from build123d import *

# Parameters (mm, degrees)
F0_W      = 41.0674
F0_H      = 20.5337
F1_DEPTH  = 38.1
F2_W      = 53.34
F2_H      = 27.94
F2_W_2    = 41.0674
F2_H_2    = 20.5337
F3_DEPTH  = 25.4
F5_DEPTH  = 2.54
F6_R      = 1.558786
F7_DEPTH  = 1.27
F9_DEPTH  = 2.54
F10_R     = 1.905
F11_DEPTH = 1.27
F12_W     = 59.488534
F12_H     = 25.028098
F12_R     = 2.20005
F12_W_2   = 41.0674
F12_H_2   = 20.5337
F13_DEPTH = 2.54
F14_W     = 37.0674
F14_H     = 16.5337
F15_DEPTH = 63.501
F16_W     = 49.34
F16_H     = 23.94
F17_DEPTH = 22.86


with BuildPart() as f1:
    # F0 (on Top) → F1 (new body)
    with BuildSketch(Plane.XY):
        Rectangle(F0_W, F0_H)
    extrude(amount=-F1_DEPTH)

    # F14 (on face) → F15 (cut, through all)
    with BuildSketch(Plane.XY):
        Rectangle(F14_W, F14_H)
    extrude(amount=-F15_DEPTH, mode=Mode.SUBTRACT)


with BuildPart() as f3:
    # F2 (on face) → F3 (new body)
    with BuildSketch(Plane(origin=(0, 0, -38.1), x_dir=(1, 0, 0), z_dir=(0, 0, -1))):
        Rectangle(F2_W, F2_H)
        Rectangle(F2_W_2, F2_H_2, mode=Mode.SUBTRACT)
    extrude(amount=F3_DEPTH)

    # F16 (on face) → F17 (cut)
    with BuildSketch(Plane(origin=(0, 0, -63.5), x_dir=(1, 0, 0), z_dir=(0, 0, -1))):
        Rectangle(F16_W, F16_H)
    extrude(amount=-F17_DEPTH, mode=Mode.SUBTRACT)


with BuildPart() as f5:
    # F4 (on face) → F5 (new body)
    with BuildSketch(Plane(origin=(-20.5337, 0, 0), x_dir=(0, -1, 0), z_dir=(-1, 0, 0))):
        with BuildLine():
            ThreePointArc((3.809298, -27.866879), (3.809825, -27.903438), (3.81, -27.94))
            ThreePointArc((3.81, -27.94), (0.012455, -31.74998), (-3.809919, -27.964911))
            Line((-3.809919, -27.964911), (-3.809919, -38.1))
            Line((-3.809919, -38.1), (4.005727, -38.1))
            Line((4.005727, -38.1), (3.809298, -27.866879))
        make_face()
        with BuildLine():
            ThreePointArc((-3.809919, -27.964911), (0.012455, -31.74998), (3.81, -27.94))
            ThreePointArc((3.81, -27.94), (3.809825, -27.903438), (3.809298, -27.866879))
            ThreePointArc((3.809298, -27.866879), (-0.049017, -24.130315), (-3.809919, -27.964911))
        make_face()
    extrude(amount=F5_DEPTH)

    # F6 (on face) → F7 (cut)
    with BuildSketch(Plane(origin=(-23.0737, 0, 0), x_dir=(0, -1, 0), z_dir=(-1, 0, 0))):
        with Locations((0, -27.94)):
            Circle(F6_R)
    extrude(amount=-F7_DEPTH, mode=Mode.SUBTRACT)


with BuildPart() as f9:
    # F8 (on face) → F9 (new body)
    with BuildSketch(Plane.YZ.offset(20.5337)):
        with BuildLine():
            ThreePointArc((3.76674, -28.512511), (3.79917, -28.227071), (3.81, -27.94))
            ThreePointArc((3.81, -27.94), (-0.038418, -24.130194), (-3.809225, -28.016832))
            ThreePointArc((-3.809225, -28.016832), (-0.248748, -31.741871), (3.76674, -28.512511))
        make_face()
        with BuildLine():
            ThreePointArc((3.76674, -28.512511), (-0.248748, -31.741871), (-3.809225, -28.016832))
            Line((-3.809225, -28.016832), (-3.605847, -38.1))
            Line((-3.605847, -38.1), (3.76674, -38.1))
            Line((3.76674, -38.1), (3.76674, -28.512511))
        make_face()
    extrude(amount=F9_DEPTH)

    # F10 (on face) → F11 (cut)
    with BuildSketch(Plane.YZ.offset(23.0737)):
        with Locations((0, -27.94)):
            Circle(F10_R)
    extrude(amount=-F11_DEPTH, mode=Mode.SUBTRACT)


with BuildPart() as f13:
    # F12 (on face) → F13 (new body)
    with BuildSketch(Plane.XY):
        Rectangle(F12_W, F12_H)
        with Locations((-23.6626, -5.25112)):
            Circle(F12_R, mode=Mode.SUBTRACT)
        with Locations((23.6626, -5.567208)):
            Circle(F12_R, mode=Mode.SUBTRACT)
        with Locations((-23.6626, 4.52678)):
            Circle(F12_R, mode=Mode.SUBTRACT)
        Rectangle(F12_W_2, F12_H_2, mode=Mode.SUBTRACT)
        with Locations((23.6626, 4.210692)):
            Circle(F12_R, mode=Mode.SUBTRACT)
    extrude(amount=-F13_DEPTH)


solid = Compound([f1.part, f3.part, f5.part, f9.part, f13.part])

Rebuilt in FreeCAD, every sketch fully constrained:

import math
import FreeCAD as App
import Part
import Sketcher
from FreeCAD import Vector
Q = App.Units.Quantity


def add_polygon(sketch, points):
    """Adds a closed chain of lines whose ends are joined by coincident constraints."""
    first, n = sketch.GeometryCount, len(points)
    for a, b in zip(points, points[1:] + points[:1]):
        sketch.addGeometry(Part.LineSegment(App.Vector(*a, 0), App.Vector(*b, 0)), False)
    for i in range(n):
        sketch.addConstraint(Sketcher.Constraint("Coincident", first + i, 2, first + (i + 1) % n, 1))

doc = App.newDocument("Part")
body = doc.addObject("PartDesign::Body", "Body")

sketch1 = doc.addObject("Sketcher::SketchObject", "Sketch")
body.addObject(sketch1)
sketch1.AttachmentSupport = (doc.XY_Plane, [""])
sketch1.MapMode = "FlatFace"
add_polygon(sketch1, [(-20.5337, 10.26685), (-20.5337, -10.26685), (20.5337, -10.26685), (20.5337, 10.26685)])
sketch1.addConstraint(Sketcher.Constraint("Vertical", 0))
sketch1.addConstraint(Sketcher.Constraint("Horizontal", 1))
sketch1.addConstraint(Sketcher.Constraint("Vertical", 2))
sketch1.addConstraint(Sketcher.Constraint("Horizontal", 3))
sketch1.addConstraint(Sketcher.Constraint("Symmetric", 0, 2, 2, 2, -1, 1))
sketch1.addConstraint(Sketcher.Constraint("DistanceX", 1, 1, 1, 2, 41.0674))
sketch1.addConstraint(Sketcher.Constraint("DistanceY", 0, 2, 0, 1, 20.5337))
pad1 = doc.addObject("PartDesign::Pad", "Pad")
body.addObject(pad1)
pad1.Profile = sketch1
pad1.Length = Q("1.5 in")
pad1.Reversed = True

sketch2 = doc.addObject("Sketcher::SketchObject", "Sketch001")
body.addObject(sketch2)
sketch2.AttachmentSupport = (doc.XY_Plane, [""])
sketch2.MapMode = "FlatFace"
add_polygon(sketch2, [(-18.5337, 8.26685), (-18.5337, -8.26685), (18.5337, -8.26685), (18.5337, 8.26685)])
sketch2.addConstraint(Sketcher.Constraint("Vertical", 0))
sketch2.addConstraint(Sketcher.Constraint("Horizontal", 1))
sketch2.addConstraint(Sketcher.Constraint("Vertical", 2))
sketch2.addConstraint(Sketcher.Constraint("Horizontal", 3))
sketch2.addConstraint(Sketcher.Constraint("Symmetric", 0, 2, 2, 2, -1, 1))
sketch2.addConstraint(Sketcher.Constraint("DistanceX", 1, 1, 1, 2, 37.0674))
sketch2.addConstraint(Sketcher.Constraint("DistanceY", 0, 2, 0, 1, 16.5337))
pocket1 = doc.addObject("PartDesign::Pocket", "Pocket")
body.addObject(pocket1)
pocket1.Profile = sketch2
pocket1.Type = "ThroughAll"
body2 = doc.addObject("PartDesign::Body", "Body001")

sketch3 = doc.addObject("Sketcher::SketchObject", "Sketch002")
body2.addObject(sketch3)
sketch3.AttachmentSupport = (doc.getObject("XY_Plane001"), [""])
sketch3.MapMode = "FlatFace"
sketch3.AttachmentOffset = App.Placement(Vector(0, 0, -1.5 * 25.4), App.Rotation())
add_polygon(sketch3, [(-26.67, -13.97), (-26.67, 13.97), (26.67, 13.97), (26.67, -13.97)])
add_polygon(sketch3, [(20.5337, 10.26685), (-20.5337, 10.26685), (-20.5337, -10.26685), (20.5337, -10.26685)])
sketch3.addConstraint(Sketcher.Constraint("Vertical", 0))
sketch3.addConstraint(Sketcher.Constraint("Horizontal", 1))
sketch3.addConstraint(Sketcher.Constraint("Vertical", 2))
sketch3.addConstraint(Sketcher.Constraint("Horizontal", 3))
sketch3.addConstraint(Sketcher.Constraint("Horizontal", 4))
sketch3.addConstraint(Sketcher.Constraint("Vertical", 5))
sketch3.addConstraint(Sketcher.Constraint("Horizontal", 6))
sketch3.addConstraint(Sketcher.Constraint("Vertical", 7))
sketch3.addConstraint(Sketcher.Constraint("Symmetric", 0, 2, 2, 2, -1, 1))
sketch3.addConstraint(Sketcher.Constraint("Symmetric", 4, 2, 6, 2, -1, 1))
sketch3.addConstraint(Sketcher.Constraint("DistanceX", 1, 1, 1, 2, Q("2.1 in")))
sketch3.addConstraint(Sketcher.Constraint("DistanceY", 0, 1, 0, 2, Q("1.1 in")))
sketch3.addConstraint(Sketcher.Constraint("DistanceX", 4, 2, 4, 1, 41.0674))
sketch3.addConstraint(Sketcher.Constraint("DistanceY", 5, 2, 5, 1, 20.5337))
pad2 = doc.addObject("PartDesign::Pad", "Pad001")
body2.addObject(pad2)
pad2.Profile = sketch3
pad2.Length = Q("1 in")
pad2.Reversed = True

sketch4 = doc.addObject("Sketcher::SketchObject", "Sketch003")
body2.addObject(sketch4)
sketch4.AttachmentSupport = (doc.getObject("XY_Plane001"), [""])
sketch4.MapMode = "FlatFace"
sketch4.AttachmentOffset = App.Placement(Vector(0, 0, -2.5 * 25.4), App.Rotation())
add_polygon(sketch4, [(-24.67, -11.97), (-24.67, 11.97), (24.67, 11.97), (24.67, -11.97)])
sketch4.addConstraint(Sketcher.Constraint("Vertical", 0))
sketch4.addConstraint(Sketcher.Constraint("Horizontal", 1))
sketch4.addConstraint(Sketcher.Constraint("Vertical", 2))
sketch4.addConstraint(Sketcher.Constraint("Horizontal", 3))
sketch4.addConstraint(Sketcher.Constraint("Symmetric", 0, 2, 2, 2, -1, 1))
sketch4.addConstraint(Sketcher.Constraint("DistanceX", 1, 1, 1, 2, 49.34))
sketch4.addConstraint(Sketcher.Constraint("DistanceY", 0, 1, 0, 2, 23.94))
pocket2 = doc.addObject("PartDesign::Pocket", "Pocket001")
body2.addObject(pocket2)
pocket2.Profile = sketch4
pocket2.Length = Q("0.9 in")
pocket2.Reversed = True
body3 = doc.addObject("PartDesign::Body", "Body002")

sketch5 = doc.addObject("Sketcher::SketchObject", "Sketch004")
body3.addObject(sketch5)
sketch5.AttachmentSupport = (doc.getObject("YZ_Plane002"), [""])
sketch5.MapMode = "FlatFace"
sketch5.AttachmentOffset = App.Placement(Vector(0, 0, -20.5337), App.Rotation())
sketch5.addGeometry(Part.LineSegment(Vector(3.809919, -27.964911, 0), Vector(3.809919, -38.1, 0)), False)
sketch5.addGeometry(Part.LineSegment(Vector(3.809919, -38.1, 0), Vector(-4.005727, -38.1, 0)), False)
sketch5.addGeometry(Part.LineSegment(Vector(-4.005727, -38.1, 0), Vector(-3.809298, -27.866879, 0)), False)
sketch5.addGeometry(Part.ArcOfCircle(Part.Circle(Vector(0, -27.94, 0), Vector(0, 0, 1), 3.81), math.radians(-0.374624), math.radians(178.900323)), False)
sketch5.addConstraint(Sketcher.Constraint("Coincident", 0, 2, 1, 1))
sketch5.addConstraint(Sketcher.Constraint("Coincident", 1, 2, 2, 1))
sketch5.addConstraint(Sketcher.Constraint("Coincident", 2, 2, 3, 2))
sketch5.addConstraint(Sketcher.Constraint("Coincident", 3, 1, 0, 1))
sketch5.addConstraint(Sketcher.Constraint("Vertical", 0))
sketch5.addConstraint(Sketcher.Constraint("Horizontal", 1))
sketch5.addConstraint(Sketcher.Constraint("PointOnObject", 3, 3, -2))
sketch5.addConstraint(Sketcher.Constraint("Radius", 3, Q("0.15 in")))
sketch5.addConstraint(Sketcher.Constraint("DistanceY", 3, 3, -1, 1, Q("1.1 in")))
sketch5.addConstraint(Sketcher.Constraint("DistanceY", 0, 2, -1, 1, Q("1.5 in")))
sketch5.addConstraint(Sketcher.Constraint("DistanceY", 0, 2, 0, 1, 10.135089))
sketch5.addConstraint(Sketcher.Constraint("DistanceX", 2, 2, -1, 1, 3.809298))
sketch5.addConstraint(Sketcher.Constraint("DistanceX", 1, 2, 1, 1, 7.815646))
pad3 = doc.addObject("PartDesign::Pad", "Pad002")
body3.addObject(pad3)
pad3.Profile = sketch5
pad3.Length = Q("0.1 in")
pad3.Reversed = True

sketch6 = doc.addObject("Sketcher::SketchObject", "Sketch005")
body3.addObject(sketch6)
sketch6.AttachmentSupport = (doc.getObject("YZ_Plane002"), [""])
sketch6.MapMode = "FlatFace"
sketch6.AttachmentOffset = App.Placement(Vector(0, 0, -23.0737), App.Rotation())
sketch6.addGeometry(Part.Circle(Vector(0, -27.94, 0), Vector(0, 0, 1), 1.558786), False)
sketch6.addConstraint(Sketcher.Constraint("PointOnObject", 0, 3, -2))
sketch6.addConstraint(Sketcher.Constraint("DistanceY", 0, 3, -1, 1, Q("1.1 in")))
sketch6.addConstraint(Sketcher.Constraint("Diameter", 0, 3.117572))
pocket3 = doc.addObject("PartDesign::Pocket", "Pocket002")
body3.addObject(pocket3)
pocket3.Profile = sketch6
pocket3.Length = Q("0.05 in")
pocket3.Reversed = True
body4 = doc.addObject("PartDesign::Body", "Body003")

sketch7 = doc.addObject("Sketcher::SketchObject", "Sketch006")
body4.addObject(sketch7)
sketch7.AttachmentSupport = (doc.getObject("YZ_Plane003"), [""])
sketch7.MapMode = "FlatFace"
sketch7.AttachmentOffset = App.Placement(Vector(0, 0, 20.5337), App.Rotation())
sketch7.addGeometry(Part.ArcOfCircle(Part.Circle(Vector(0.000134, -27.940009, 0), Vector(0, 0, 1), 3.809866), math.radians(-8.642469), math.radians(0.00014)), False)
sketch7.addGeometry(Part.ArcOfCircle(Part.Circle(Vector(0, -27.94, 0), Vector(0, 0, 1), 3.81), math.radians(0.000003), math.radians(181.155495)), False)
sketch7.addGeometry(Part.LineSegment(Vector(-3.809225, -28.016832, 0), Vector(-3.605847, -38.1, 0)), False)
sketch7.addGeometry(Part.LineSegment(Vector(-3.605847, -38.1, 0), Vector(3.76674, -38.1, 0)), False)
sketch7.addGeometry(Part.LineSegment(Vector(3.76674, -38.1, 0), Vector(3.76674, -28.512511, 0)), False)
sketch7.addConstraint(Sketcher.Constraint("Coincident", 0, 2, 1, 1))
sketch7.addConstraint(Sketcher.Constraint("Tangent", 1, 2, 2, 1))
sketch7.addConstraint(Sketcher.Constraint("Coincident", 2, 2, 3, 1))
sketch7.addConstraint(Sketcher.Constraint("Coincident", 3, 2, 4, 1))
sketch7.addConstraint(Sketcher.Constraint("Coincident", 4, 2, 0, 1))
sketch7.addConstraint(Sketcher.Constraint("Horizontal", 3))
sketch7.addConstraint(Sketcher.Constraint("Vertical", 4))
sketch7.addConstraint(Sketcher.Constraint("PointOnObject", 1, 3, -2))
sketch7.addConstraint(Sketcher.Constraint("Horizontal", 1, 3, 0, 2))
sketch7.addConstraint(Sketcher.Constraint("Radius", 1, Q("0.15 in")))
sketch7.addConstraint(Sketcher.Constraint("DistanceY", 1, 3, -1, 1, Q("1.1 in")))
sketch7.addConstraint(Sketcher.Constraint("DistanceY", 2, 2, -1, 1, Q("1.5 in")))
sketch7.addConstraint(Sketcher.Constraint("Radius", 0, 3.809866))
sketch7.addConstraint(Sketcher.Constraint("DistanceY", 4, 1, 4, 2, 9.587489))
sketch7.addConstraint(Sketcher.Constraint("DistanceY", 4, 2, 0, 3, 0.572502))
sketch7.addConstraint(Sketcher.Constraint("Distance", 2, 10.085219))
pad4 = doc.addObject("PartDesign::Pad", "Pad003")
body4.addObject(pad4)
pad4.Profile = sketch7
pad4.Length = Q("0.1 in")

sketch8 = doc.addObject("Sketcher::SketchObject", "Sketch007")
body4.addObject(sketch8)
sketch8.AttachmentSupport = (doc.getObject("YZ_Plane003"), [""])
sketch8.MapMode = "FlatFace"
sketch8.AttachmentOffset = App.Placement(Vector(0, 0, 23.0737), App.Rotation())
sketch8.addGeometry(Part.Circle(Vector(0, -27.94, 0), Vector(0, 0, 1), 1.905), False)
sketch8.addConstraint(Sketcher.Constraint("PointOnObject", 0, 3, -2))
sketch8.addConstraint(Sketcher.Constraint("Diameter", 0, Q("0.15 in")))
sketch8.addConstraint(Sketcher.Constraint("DistanceY", 0, 3, -1, 1, Q("1.1 in")))
pocket4 = doc.addObject("PartDesign::Pocket", "Pocket003")
body4.addObject(pocket4)
pocket4.Profile = sketch8
pocket4.Length = Q("0.05 in")
body5 = doc.addObject("PartDesign::Body", "Body004")

sketch9 = doc.addObject("Sketcher::SketchObject", "Sketch008")
body5.addObject(sketch9)
sketch9.AttachmentSupport = (doc.getObject("XY_Plane004"), [""])
sketch9.MapMode = "FlatFace"
add_polygon(sketch9, [(-29.744267, 12.514049), (-29.744267, -12.514049), (29.744267, -12.514049), (29.744267, 12.514049)])
sketch9.addGeometry(Part.Circle(Vector(-23.6626, -5.25112, 0), Vector(0, 0, 1), 2.20005), False)
sketch9.addGeometry(Part.Circle(Vector(23.6626, -5.567208, 0), Vector(0, 0, 1), 2.20005), False)
sketch9.addGeometry(Part.Circle(Vector(-23.6626, 4.52678, 0), Vector(0, 0, 1), 2.20005), False)
add_polygon(sketch9, [(20.5337, -10.26685), (-20.5337, -10.26685), (-20.5337, 10.26685), (20.5337, 10.26685)])
sketch9.addGeometry(Part.Circle(Vector(23.6626, 4.210692, 0), Vector(0, 0, 1), 2.20005), False)
sketch9.addConstraint(Sketcher.Constraint("Vertical", 0))
sketch9.addConstraint(Sketcher.Constraint("Horizontal", 1))
sketch9.addConstraint(Sketcher.Constraint("Vertical", 2))
sketch9.addConstraint(Sketcher.Constraint("Horizontal", 3))
sketch9.addConstraint(Sketcher.Constraint("Horizontal", 7))
sketch9.addConstraint(Sketcher.Constraint("Vertical", 8))
sketch9.addConstraint(Sketcher.Constraint("Horizontal", 9))
sketch9.addConstraint(Sketcher.Constraint("Vertical", 10))
sketch9.addConstraint(Sketcher.Constraint("Equal", 4, 5))
sketch9.addConstraint(Sketcher.Constraint("Equal", 5, 6))
sketch9.addConstraint(Sketcher.Constraint("Equal", 6, 11))
sketch9.addConstraint(Sketcher.Constraint("Symmetric", 0, 2, 2, 2, -1, 1))
sketch9.addConstraint(Sketcher.Constraint("Symmetric", 7, 2, 9, 2, -1, 1))
sketch9.addConstraint(Sketcher.Constraint("Vertical", 4, 3, 6, 3))
sketch9.addConstraint(Sketcher.Constraint("Vertical", 5, 3, 11, 3))
sketch9.addConstraint(Sketcher.Constraint("Diameter", 4, 4.4001))
sketch9.addConstraint(Sketcher.Constraint("DistanceX", 7, 2, 7, 1, 41.0674))
sketch9.addConstraint(Sketcher.Constraint("DistanceY", 0, 2, 0, 1, 25.028098))
sketch9.addConstraint(Sketcher.Constraint("DistanceY", 8, 1, 8, 2, 20.5337))
sketch9.addConstraint(Sketcher.Constraint("DistanceX", 4, 3, -1, 1, 23.6626))
sketch9.addConstraint(Sketcher.Constraint("DistanceX", -1, 1, 5, 3, 23.6626))
sketch9.addConstraint(Sketcher.Constraint("DistanceY", 4, 3, 6, 3, 9.7779))
sketch9.addConstraint(Sketcher.Constraint("DistanceY", 5, 3, 11, 3, 9.7779))
sketch9.addConstraint(Sketcher.Constraint("DistanceX", 1, 1, 1, 2, 59.488534))
sketch9.addConstraint(Sketcher.Constraint("DistanceY", 4, 3, -1, 1, 5.25112))
sketch9.addConstraint(Sketcher.Constraint("DistanceY", 0, 2, 5, 3, 6.946841))
pad5 = doc.addObject("PartDesign::Pad", "Pad004")
body5.addObject(pad5)
pad5.Profile = sketch9
pad5.Length = Q("0.1 in")
pad5.Reversed = True

doc.recompute()
